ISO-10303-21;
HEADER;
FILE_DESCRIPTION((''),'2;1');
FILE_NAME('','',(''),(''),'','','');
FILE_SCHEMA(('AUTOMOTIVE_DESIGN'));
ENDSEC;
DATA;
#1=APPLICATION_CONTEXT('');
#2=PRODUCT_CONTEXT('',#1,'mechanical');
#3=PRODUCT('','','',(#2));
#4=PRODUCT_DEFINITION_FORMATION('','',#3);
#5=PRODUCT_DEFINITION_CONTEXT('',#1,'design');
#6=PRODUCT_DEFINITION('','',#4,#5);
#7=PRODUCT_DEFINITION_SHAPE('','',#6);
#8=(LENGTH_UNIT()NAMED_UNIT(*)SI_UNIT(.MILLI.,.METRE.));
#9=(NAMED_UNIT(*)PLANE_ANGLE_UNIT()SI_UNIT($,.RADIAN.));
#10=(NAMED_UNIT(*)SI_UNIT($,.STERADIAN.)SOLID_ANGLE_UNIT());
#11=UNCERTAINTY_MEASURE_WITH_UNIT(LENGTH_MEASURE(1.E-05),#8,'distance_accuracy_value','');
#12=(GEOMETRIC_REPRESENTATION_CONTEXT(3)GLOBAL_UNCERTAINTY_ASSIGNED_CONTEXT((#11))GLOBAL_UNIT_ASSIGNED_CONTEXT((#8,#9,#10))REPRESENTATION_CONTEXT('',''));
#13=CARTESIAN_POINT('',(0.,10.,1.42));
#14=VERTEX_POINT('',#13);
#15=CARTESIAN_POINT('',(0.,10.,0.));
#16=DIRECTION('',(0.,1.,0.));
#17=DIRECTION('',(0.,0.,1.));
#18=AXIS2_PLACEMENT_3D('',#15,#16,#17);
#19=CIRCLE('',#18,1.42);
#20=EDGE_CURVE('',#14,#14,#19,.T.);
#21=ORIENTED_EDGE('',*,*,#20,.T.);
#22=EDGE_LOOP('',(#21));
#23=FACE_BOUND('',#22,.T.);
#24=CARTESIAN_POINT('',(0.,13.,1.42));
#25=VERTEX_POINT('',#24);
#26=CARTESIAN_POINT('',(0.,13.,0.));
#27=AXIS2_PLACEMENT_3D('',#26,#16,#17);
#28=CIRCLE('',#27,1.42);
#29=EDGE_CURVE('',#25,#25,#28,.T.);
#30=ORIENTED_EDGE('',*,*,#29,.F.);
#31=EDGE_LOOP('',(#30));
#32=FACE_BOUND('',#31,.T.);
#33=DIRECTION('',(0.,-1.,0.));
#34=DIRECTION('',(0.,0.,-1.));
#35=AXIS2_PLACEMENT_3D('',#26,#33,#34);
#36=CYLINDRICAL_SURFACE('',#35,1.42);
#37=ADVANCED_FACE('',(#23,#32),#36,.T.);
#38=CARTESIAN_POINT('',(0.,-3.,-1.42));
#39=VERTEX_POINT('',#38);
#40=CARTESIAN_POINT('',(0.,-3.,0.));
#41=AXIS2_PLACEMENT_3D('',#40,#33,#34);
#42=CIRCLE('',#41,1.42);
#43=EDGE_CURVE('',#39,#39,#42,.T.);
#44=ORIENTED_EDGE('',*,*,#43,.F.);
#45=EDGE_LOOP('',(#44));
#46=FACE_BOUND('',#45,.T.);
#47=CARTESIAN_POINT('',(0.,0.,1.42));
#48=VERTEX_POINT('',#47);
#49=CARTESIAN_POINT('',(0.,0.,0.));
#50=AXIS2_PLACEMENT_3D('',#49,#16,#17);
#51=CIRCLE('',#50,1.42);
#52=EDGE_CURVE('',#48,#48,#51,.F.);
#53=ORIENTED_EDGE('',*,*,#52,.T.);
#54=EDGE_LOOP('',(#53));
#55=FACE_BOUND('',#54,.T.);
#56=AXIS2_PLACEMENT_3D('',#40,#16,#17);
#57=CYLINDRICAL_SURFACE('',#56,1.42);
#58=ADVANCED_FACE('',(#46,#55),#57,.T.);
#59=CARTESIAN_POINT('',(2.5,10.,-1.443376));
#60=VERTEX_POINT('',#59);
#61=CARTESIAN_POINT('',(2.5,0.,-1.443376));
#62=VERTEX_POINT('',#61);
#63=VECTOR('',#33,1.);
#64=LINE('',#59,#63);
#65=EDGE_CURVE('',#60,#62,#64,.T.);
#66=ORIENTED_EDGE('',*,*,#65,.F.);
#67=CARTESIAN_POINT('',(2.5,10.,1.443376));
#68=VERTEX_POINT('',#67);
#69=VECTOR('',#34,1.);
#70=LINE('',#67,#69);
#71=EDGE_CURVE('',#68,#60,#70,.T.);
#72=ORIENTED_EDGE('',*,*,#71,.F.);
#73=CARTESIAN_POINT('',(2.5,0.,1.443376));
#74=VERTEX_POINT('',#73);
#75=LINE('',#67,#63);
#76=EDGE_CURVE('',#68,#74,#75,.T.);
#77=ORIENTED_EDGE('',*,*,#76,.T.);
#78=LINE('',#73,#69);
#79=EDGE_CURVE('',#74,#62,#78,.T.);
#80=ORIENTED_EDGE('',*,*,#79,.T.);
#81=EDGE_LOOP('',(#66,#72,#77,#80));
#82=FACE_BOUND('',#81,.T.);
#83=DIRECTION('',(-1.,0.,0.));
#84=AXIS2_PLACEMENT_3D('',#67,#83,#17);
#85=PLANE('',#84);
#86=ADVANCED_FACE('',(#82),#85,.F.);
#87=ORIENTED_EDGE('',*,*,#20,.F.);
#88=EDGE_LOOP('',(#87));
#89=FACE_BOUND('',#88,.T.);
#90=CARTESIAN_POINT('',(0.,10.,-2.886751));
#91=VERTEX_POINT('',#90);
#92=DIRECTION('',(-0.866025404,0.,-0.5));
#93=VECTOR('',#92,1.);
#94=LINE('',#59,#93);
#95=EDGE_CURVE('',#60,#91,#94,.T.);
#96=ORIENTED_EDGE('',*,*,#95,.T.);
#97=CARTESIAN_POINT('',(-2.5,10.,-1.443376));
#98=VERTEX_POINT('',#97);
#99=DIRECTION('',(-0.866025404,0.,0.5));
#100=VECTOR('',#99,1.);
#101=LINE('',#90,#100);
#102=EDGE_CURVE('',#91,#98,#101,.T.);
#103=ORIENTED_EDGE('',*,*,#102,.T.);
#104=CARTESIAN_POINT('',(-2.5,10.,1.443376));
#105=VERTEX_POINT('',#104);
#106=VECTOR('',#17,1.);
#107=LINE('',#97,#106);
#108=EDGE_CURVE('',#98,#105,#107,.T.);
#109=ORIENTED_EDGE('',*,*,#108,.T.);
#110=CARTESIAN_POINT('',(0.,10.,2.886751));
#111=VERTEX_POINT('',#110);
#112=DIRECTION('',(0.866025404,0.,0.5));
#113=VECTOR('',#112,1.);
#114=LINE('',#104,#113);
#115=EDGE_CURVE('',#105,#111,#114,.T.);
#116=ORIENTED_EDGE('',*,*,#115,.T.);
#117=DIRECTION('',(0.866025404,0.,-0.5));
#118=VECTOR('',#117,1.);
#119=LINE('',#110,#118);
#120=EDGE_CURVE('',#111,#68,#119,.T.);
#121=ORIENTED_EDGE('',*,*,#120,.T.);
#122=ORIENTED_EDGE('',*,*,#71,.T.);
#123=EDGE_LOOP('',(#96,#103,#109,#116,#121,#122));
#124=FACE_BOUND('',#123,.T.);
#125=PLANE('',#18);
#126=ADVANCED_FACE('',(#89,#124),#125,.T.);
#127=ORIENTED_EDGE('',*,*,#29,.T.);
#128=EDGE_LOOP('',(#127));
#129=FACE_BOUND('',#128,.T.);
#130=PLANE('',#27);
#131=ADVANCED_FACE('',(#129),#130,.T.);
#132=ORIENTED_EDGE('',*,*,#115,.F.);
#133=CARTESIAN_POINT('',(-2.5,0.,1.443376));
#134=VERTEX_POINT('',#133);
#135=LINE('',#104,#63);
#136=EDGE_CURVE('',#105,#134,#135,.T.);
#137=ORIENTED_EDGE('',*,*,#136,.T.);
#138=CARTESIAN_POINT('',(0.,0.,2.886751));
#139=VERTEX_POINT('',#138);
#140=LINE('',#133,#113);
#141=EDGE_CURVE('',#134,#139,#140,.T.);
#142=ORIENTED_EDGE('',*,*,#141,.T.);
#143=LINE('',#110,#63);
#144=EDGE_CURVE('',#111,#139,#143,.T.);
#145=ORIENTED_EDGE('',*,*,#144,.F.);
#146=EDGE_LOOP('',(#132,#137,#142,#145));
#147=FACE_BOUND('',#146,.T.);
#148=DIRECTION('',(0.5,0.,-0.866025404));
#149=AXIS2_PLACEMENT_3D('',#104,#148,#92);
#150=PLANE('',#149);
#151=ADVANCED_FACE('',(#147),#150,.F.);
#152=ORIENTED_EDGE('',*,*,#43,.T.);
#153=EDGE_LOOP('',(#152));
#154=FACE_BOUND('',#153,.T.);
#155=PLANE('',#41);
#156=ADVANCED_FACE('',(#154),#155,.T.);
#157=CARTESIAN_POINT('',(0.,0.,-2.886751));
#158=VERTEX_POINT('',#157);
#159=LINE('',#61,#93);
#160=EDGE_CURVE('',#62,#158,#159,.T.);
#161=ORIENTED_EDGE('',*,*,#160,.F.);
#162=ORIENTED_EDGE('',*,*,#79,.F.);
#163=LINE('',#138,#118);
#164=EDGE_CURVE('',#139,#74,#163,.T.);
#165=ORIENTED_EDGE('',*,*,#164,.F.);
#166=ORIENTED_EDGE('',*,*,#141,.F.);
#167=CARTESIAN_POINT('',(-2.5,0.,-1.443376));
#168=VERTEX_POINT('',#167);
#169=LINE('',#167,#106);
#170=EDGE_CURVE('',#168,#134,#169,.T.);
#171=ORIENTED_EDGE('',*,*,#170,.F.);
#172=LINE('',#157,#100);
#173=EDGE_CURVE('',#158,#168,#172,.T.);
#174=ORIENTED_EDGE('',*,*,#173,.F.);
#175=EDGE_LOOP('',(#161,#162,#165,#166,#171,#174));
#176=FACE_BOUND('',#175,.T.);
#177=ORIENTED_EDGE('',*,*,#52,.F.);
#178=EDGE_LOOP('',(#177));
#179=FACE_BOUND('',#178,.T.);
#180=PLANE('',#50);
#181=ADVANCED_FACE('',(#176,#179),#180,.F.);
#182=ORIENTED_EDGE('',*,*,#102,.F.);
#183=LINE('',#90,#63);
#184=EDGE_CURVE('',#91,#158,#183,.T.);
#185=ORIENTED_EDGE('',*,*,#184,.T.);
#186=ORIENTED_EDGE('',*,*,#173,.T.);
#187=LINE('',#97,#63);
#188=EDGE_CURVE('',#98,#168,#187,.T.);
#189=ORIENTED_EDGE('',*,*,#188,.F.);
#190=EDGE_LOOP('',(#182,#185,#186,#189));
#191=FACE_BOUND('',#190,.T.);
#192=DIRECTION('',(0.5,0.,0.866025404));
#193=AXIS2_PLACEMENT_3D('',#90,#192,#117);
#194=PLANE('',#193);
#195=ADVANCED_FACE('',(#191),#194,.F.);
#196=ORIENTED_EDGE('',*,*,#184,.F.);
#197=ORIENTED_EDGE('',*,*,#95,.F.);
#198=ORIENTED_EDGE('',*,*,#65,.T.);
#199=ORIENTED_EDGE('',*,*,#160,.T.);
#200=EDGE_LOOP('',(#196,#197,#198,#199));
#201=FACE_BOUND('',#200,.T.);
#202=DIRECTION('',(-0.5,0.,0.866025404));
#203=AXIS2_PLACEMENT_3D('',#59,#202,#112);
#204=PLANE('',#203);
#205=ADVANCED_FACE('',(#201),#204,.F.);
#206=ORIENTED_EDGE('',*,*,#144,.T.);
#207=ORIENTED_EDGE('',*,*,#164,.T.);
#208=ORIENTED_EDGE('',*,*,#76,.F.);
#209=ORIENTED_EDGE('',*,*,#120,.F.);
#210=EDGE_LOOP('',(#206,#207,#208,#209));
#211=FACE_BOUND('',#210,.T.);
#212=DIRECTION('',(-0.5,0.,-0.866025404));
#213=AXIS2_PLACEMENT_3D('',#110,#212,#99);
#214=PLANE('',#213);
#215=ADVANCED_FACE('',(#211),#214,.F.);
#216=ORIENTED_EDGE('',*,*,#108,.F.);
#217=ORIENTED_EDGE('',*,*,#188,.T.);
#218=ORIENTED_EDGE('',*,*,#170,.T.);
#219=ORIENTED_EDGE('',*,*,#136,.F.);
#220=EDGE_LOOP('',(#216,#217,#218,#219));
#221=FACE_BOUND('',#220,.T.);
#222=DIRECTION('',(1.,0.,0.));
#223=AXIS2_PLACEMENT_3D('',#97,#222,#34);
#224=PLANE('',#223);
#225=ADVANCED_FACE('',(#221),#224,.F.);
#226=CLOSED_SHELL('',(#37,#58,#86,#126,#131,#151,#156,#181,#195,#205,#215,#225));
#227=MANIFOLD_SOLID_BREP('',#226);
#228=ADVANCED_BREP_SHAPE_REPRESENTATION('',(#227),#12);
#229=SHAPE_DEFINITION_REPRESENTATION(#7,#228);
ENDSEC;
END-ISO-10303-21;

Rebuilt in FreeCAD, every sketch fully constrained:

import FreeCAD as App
import Part
import Sketcher
from FreeCAD import Vector
Q = App.Units.Quantity

doc = App.newDocument("Part")
body = doc.addObject("PartDesign::Body", "Body")

sketch1 = doc.addObject("Sketcher::SketchObject", "Sketch")
body.addObject(sketch1)
sketch1.AttachmentSupport = (doc.XZ_Plane, [""])
sketch1.MapMode = "FlatFace"
sketch1.addGeometry(Part.LineSegment(Vector(0, -2.886751, 0), Vector(-2.5, -1.443376, 0)), False)
sketch1.addGeometry(Part.LineSegment(Vector(-2.5, -1.443376, 0), Vector(-2.5, 1.443376, 0)), False)
sketch1.addGeometry(Part.LineSegment(Vector(-2.5, 1.443376, 0), Vector(0, 2.886751, 0)), False)
sketch1.addGeometry(Part.LineSegment(Vector(0, 2.886751, 0), Vector(2.5, 1.443376, 0)), False)
sketch1.addGeometry(Part.LineSegment(Vector(2.5, 1.443376, 0), Vector(2.5, -1.443376, 0)), False)
sketch1.addGeometry(Part.LineSegment(Vector(2.5, -1.443376, 0), Vector(0, -2.886751, 0)), False)
sketch1.addConstraint(Sketcher.Constraint("Coincident", 0, 2, 1, 1))
sketch1.addConstraint(Sketcher.Constraint("Coincident", 1, 2, 2, 1))
sketch1.addConstraint(Sketcher.Constraint("Coincident", 2, 2, 3, 1))
sketch1.addConstraint(Sketcher.Constraint("Coincident", 3, 2, 4, 1))
sketch1.addConstraint(Sketcher.Constraint("Coincident", 4, 2, 5, 1))
sketch1.addConstraint(Sketcher.Constraint("Coincident", 5, 2, 0, 1))
sketch1.addConstraint(Sketcher.Constraint("Vertical", 1))
sketch1.addConstraint(Sketcher.Constraint("Vertical", 4))
sketch1.addConstraint(Sketcher.Constraint("Symmetric", 0, 2, 3, 2, -1, 1))
sketch1.addConstraint(Sketcher.Constraint("Symmetric", 2, 2, 5, 2, -1, 1))
sketch1.addConstraint(Sketcher.Constraint("PointOnObject", 2, 2, -2))
sketch1.addConstraint(Sketcher.Constraint("Parallel", 2, 5))
sketch1.addConstraint(Sketcher.Constraint("Horizontal", 1, 2, 3, 2))
sketch1.addConstraint(Sketcher.Constraint("Angle", 0, Q("150 deg")))
sketch1.addConstraint(Sketcher.Constraint("DistanceX", 1, 2, 3, 2, 5.0))
sketch1.addConstraint(Sketcher.Constraint("DistanceY", 1, 1, 1, 2, 2.886751))
pad1 = doc.addObject("PartDesign::Pad", "Pad")
body.addObject(pad1)
pad1.Profile = sketch1
pad1.Length = 10
pad1.Reversed = True

sketch2 = doc.addObject("Sketcher::SketchObject", "Sketch001")
body.addObject(sketch2)
sketch2.AttachmentSupport = (doc.XZ_Plane, [""])
sketch2.MapMode = "FlatFace"
sketch2.AttachmentOffset = App.Placement(Vector(0, 0, -10), App.Rotation())
sketch2.addGeometry(Part.Circle(Vector(0, 0, 0), Vector(0, 0, 1), 1.42), False)
sketch2.addConstraint(Sketcher.Constraint("Coincident", 0, 3, -1, 1))
sketch2.addConstraint(Sketcher.Constraint("Diameter", 0, 2.84))
pad2 = doc.addObject("PartDesign::Pad", "Pad001")
body.addObject(pad2)
pad2.Profile = sketch2
pad2.Length = 3
pad2.Reversed = True

sketch3 = doc.addObject("Sketcher::SketchObject", "Sketch002")
body.addObject(sketch3)
sketch3.AttachmentSupport = (doc.XZ_Plane, [""])
sketch3.MapMode = "FlatFace"
sketch3.AttachmentOffset = App.Placement(Vector(0, 0, 3), App.Rotation())
sketch3.addGeometry(Part.Circle(Vector(0, 0, 0), Vector(0, 0, 1), 1.42), False)
sketch3.addConstraint(Sketcher.Constraint("Coincident", 0, 3, -1, 1))
sketch3.addConstraint(Sketcher.Constraint("Diameter", 0, 2.84))
pad3 = doc.addObject("PartDesign::Pad", "Pad002")
body.addObject(pad3)
pad3.Profile = sketch3
pad3.Length = 3
pad3.Reversed = True

doc.recompute()
